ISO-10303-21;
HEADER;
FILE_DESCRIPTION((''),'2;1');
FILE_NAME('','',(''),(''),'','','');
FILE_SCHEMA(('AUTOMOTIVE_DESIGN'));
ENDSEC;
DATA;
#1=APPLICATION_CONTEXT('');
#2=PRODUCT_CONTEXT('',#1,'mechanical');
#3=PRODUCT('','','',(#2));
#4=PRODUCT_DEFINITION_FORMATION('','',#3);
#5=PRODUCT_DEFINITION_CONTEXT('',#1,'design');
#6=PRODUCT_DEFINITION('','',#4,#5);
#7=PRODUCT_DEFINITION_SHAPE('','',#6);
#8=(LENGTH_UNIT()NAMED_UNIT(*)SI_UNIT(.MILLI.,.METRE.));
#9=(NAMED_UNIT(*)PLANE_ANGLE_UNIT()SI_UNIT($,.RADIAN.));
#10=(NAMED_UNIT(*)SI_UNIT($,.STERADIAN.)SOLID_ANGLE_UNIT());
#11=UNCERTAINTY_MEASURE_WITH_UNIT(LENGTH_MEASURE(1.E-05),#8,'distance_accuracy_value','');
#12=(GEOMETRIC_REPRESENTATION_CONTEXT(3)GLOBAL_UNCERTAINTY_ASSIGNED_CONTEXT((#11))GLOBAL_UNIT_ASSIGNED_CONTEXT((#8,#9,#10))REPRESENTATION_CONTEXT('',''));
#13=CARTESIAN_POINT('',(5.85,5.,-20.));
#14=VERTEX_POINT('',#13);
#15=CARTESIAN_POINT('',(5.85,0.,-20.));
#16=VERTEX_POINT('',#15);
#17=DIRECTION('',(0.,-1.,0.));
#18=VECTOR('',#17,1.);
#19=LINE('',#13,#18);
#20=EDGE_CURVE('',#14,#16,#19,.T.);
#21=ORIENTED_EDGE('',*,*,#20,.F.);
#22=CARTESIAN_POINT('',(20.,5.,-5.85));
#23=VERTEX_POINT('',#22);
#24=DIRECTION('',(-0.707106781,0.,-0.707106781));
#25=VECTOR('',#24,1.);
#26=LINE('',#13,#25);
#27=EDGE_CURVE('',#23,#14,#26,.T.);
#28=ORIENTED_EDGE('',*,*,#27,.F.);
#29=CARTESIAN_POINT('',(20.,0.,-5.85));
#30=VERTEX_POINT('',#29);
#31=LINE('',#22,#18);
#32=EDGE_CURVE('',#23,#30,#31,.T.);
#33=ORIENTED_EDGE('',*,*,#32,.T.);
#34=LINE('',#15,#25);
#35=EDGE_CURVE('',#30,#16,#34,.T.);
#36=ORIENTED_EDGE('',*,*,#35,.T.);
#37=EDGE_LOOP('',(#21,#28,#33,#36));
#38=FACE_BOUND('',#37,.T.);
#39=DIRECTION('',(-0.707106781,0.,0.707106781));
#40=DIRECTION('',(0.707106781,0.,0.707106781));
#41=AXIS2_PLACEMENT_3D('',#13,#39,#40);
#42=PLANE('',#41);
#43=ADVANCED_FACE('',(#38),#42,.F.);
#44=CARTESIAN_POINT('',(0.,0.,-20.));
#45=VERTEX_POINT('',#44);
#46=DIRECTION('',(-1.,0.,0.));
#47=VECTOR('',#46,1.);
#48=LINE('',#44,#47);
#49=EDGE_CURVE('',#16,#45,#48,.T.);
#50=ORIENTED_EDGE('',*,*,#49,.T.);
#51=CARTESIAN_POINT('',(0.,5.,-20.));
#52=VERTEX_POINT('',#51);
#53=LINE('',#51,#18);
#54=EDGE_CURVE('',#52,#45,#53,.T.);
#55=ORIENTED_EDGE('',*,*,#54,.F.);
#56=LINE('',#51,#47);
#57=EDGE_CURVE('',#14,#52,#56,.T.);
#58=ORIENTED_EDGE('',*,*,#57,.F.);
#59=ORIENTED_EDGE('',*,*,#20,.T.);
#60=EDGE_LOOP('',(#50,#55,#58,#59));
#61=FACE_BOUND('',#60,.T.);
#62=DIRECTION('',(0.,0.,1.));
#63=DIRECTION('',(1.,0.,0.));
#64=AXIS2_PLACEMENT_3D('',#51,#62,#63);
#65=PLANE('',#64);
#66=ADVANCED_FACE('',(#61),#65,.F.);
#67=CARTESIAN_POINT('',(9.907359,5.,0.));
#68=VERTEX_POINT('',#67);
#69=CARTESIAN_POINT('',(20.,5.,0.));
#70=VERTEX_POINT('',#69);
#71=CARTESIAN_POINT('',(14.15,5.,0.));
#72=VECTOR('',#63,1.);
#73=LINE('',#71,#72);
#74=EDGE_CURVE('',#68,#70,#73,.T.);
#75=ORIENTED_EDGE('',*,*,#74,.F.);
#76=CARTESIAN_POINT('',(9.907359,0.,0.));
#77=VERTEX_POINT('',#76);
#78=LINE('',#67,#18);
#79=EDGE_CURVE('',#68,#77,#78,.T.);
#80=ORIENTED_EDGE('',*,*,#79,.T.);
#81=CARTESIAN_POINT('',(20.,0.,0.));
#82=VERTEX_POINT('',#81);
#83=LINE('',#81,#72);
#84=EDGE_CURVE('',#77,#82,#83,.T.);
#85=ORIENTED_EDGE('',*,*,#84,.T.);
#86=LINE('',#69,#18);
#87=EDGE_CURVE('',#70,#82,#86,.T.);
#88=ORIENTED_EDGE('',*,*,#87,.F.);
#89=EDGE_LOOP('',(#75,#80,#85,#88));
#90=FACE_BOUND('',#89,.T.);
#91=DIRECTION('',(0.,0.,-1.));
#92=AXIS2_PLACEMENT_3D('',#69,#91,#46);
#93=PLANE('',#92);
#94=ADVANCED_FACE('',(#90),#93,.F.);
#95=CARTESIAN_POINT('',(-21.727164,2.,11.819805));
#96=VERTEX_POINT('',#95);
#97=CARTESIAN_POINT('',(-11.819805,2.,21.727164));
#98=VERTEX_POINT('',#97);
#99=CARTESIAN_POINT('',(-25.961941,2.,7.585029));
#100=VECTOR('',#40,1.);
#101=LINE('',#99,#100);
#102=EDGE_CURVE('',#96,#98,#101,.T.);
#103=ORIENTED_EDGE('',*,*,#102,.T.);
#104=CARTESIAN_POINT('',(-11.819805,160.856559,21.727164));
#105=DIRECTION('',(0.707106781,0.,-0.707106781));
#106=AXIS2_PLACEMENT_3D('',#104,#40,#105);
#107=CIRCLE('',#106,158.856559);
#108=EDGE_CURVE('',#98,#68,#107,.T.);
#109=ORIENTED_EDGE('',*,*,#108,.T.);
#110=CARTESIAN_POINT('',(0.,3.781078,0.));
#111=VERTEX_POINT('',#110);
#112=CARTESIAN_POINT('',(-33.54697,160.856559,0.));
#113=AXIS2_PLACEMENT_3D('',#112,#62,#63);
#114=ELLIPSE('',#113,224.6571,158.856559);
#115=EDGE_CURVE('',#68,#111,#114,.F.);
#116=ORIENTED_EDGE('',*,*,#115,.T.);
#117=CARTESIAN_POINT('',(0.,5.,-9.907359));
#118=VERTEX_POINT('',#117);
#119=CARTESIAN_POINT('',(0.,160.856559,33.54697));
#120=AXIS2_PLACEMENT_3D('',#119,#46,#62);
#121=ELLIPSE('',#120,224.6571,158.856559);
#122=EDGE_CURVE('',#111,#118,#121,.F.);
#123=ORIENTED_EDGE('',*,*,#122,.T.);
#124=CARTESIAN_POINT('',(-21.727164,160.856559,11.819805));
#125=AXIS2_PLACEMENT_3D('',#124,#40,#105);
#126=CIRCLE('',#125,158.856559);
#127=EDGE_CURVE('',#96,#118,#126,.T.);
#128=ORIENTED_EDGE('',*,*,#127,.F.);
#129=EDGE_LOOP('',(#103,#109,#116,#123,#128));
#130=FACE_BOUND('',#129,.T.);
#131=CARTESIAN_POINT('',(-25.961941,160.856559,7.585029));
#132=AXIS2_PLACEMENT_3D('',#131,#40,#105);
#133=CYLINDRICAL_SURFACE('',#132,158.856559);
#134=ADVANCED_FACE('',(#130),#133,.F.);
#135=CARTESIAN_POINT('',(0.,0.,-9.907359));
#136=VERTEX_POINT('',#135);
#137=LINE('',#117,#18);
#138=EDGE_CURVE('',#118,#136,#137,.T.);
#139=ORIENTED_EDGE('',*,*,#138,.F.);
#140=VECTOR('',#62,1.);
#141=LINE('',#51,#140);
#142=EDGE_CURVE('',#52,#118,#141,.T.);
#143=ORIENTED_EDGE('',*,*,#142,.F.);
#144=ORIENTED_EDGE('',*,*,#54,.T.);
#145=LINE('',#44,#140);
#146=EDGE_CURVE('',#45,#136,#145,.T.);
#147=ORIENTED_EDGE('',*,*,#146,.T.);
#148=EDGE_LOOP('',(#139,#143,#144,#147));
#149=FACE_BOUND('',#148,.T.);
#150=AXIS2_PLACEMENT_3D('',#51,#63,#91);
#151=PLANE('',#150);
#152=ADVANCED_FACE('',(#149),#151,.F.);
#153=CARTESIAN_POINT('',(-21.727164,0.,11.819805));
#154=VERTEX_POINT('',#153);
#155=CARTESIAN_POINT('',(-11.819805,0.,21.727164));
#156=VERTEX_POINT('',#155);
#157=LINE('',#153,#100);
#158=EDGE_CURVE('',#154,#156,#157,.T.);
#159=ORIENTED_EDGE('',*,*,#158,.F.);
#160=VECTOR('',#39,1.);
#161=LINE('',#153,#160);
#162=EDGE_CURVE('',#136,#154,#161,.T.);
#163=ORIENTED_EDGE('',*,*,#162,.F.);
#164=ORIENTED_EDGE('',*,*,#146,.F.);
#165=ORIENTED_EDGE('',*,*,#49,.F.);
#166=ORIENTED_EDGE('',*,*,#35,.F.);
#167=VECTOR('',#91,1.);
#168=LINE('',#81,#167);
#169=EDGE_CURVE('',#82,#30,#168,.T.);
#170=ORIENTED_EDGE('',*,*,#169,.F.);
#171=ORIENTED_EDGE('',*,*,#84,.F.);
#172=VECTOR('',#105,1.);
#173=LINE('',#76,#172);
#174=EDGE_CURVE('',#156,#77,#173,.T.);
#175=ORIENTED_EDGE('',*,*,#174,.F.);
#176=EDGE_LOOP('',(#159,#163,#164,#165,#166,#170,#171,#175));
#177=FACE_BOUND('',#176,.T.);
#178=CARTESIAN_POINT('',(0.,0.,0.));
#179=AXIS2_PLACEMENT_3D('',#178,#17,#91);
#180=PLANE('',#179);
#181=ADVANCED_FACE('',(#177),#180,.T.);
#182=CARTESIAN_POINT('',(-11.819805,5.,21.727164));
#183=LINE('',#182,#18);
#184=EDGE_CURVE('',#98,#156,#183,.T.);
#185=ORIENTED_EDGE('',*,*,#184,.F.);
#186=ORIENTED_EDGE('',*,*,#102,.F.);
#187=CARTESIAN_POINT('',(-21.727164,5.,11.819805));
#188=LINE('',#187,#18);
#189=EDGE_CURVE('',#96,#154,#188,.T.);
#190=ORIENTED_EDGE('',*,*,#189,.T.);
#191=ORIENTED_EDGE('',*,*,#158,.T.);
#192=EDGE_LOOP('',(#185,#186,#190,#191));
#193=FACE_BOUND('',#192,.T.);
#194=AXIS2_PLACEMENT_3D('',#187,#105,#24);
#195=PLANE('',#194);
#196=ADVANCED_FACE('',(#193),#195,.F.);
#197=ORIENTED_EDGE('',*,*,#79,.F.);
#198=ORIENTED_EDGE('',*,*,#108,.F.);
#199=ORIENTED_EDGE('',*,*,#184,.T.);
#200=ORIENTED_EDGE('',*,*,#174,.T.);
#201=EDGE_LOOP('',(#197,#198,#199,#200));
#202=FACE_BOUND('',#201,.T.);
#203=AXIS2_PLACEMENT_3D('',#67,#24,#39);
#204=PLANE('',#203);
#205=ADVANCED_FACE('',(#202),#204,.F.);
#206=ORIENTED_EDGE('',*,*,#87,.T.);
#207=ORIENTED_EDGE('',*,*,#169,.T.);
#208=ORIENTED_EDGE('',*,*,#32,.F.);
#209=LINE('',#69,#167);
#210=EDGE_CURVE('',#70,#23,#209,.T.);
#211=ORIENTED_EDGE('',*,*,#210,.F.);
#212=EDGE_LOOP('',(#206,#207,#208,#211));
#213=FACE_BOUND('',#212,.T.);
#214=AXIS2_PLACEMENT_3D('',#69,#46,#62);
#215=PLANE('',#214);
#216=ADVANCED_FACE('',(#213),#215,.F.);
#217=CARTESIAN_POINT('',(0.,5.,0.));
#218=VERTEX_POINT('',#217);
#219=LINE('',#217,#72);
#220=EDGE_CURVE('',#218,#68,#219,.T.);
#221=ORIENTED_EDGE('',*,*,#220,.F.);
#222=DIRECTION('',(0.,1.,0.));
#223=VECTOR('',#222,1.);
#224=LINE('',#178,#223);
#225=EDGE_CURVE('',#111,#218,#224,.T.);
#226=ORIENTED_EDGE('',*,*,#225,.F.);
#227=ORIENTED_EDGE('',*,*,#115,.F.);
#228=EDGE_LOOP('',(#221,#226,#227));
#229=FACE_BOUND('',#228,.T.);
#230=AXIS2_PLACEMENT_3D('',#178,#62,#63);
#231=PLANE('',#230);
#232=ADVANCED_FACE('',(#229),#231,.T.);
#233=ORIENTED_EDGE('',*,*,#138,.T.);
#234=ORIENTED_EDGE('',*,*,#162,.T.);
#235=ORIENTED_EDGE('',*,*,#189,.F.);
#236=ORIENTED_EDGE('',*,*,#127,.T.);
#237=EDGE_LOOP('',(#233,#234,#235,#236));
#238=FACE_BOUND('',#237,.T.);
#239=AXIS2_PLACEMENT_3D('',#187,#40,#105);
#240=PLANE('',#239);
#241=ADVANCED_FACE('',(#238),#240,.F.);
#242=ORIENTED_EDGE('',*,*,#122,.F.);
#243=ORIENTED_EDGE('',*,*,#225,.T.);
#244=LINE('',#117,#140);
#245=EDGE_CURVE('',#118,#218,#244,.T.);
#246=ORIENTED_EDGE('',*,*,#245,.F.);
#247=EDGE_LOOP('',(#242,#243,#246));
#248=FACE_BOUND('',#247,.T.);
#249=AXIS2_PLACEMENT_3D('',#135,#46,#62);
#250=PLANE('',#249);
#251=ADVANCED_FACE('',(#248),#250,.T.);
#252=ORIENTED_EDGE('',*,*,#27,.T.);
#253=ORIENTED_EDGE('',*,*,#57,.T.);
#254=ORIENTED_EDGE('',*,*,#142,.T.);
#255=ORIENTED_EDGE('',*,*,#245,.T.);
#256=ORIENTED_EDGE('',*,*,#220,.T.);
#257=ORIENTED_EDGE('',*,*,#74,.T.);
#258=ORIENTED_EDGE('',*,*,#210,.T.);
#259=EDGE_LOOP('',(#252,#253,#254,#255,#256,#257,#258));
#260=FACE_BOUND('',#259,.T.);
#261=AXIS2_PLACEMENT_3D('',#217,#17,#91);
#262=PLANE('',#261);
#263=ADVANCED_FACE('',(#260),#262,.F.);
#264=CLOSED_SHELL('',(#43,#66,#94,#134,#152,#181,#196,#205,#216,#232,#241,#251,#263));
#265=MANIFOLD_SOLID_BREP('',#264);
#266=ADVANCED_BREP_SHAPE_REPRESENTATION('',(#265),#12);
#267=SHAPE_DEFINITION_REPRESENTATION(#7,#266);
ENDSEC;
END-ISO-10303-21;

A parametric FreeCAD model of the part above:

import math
import FreeCAD as App
import Part
import Sketcher

V = App.Vector
Q = App.Units.Quantity


def add_polygon(sketch, points):
    """Adds a closed chain of lines whose ends are joined by coincident constraints."""
    first, n = sketch.GeometryCount, len(points)
    for a, b in zip(points, points[1:] + points[:1]):
        sketch.addGeometry(Part.LineSegment(App.Vector(*a, 0), App.Vector(*b, 0)), False)
    for i in range(n):
        sketch.addConstraint(Sketcher.Constraint("Coincident", first + i, 2, first + (i + 1) % n, 1))

doc = App.newDocument("Part")
body = doc.addObject("PartDesign::Body", "Body")

sketch1 = body.newObject("Sketcher::SketchObject", "Sketch")
sketch1.AttachmentSupport = (doc.getObject("XZ_Plane"), [""])
sketch1.MapMode = "FlatFace"
add_polygon(sketch1, [(5.85, -20), (0, -20), (0, -9.907359), (-21.727164, 11.819805), (-11.819805, 21.727164), (9.907359, 0), (20, 0), (20, -5.85)])
sketch1.addConstraint([
    Sketcher.Constraint("Horizontal", 0),
    Sketcher.Constraint("Vertical", 1),
    Sketcher.Constraint("Horizontal", 5),
    Sketcher.Constraint("Vertical", 6),
    Sketcher.Constraint("PointOnObject", 0, 2, -2),
    Sketcher.Constraint("PointOnObject", 4, 2, -1),
    Sketcher.Constraint("Perpendicular", 2, 3),
    Sketcher.Constraint("Perpendicular", 3, 4),
    Sketcher.Constraint("Perpendicular", 4, 7),
    Sketcher.Constraint("Equal", 5, 1),
    Sketcher.Constraint("Equal", 0, 6),
    Sketcher.Constraint("Equal", 2, 4),
    Sketcher.Constraint("DistanceY", 0, 2, -1, 1, Q("20 mm")),
    Sketcher.Constraint("DistanceX", 0, 2, 0, 1, Q("5.85 mm")),
    Sketcher.Constraint("DistanceX", 5, 1, 5, 2, Q("10.092641 mm")),
    Sketcher.Constraint("Distance", 2, Q("30.726851 mm")),
])
pad1 = body.newObject("PartDesign::Pad", "Pad")
pad1.Profile = sketch1
pad1.Length = 5
pad1.Reversed = True

sketch2 = body.newObject("Sketcher::SketchObject", "Sketch001")
sketch2.Placement = App.Placement(V(4.95368, 0, 4.95368), App.Rotation(V(0.707106781, 0, -0.707106781), V(0, 0.999999999, 0), V(0.707106781, 0, 0.707106781), "ZXY"))
sketch2.addGeometry([
    Part.LineSegment(V(-23.72129, 5, 0), V(-23.72129, 2, 0)),
    Part.ArcOfCircle(Part.Circle(V(-23.72129, 160.856559, 0), V(0, 0, 1), 158.856559), math.radians(-90), math.radians(-78.847261)),
    Part.LineSegment(V(7.005561, 5, 0), V(-23.72129, 5, 0)),
], False)
sketch2.addConstraint([
    Sketcher.Constraint("Coincident", 0, 2, 1, 1),
    Sketcher.Constraint("Coincident", 1, 2, 2, 1),
    Sketcher.Constraint("Coincident", 2, 2, 0, 1),
    Sketcher.Constraint("Vertical", 0),
    Sketcher.Constraint("Horizontal", 2),
    Sketcher.Constraint("Vertical", 1, 3, 0, 2),
    Sketcher.Constraint("DistanceY", 0, 2, 0, 1, Q("3 mm")),
    Sketcher.Constraint("DistanceY", -1, 1, 0, 2, Q("2 mm")),
    Sketcher.Constraint("Radius", 1, Q("158.856559 mm")),
    Sketcher.Constraint("DistanceX", 1, 3, -1, 1, Q("23.72129 mm")),
])
pocket1 = body.newObject("PartDesign::Pocket", "Pocket")
pocket1.Profile = sketch2
pocket1.Length = 20

sketch3 = body.newObject("Sketcher::SketchObject", "Sketch002")
sketch3.AttachmentSupport = (doc.getObject("XZ_Plane"), [""])
sketch3.MapMode = "FlatFace"
sketch3.AttachmentOffset = App.Placement(V(0, 0, -5), App.Rotation())
add_polygon(sketch3, [(0, -9.907359), (0, 0), (9.907359, 0)])
sketch3.addConstraint([
    Sketcher.Constraint("Vertical", 0),
    Sketcher.Constraint("Horizontal", 1),
    Sketcher.Constraint("Coincident", 0, 2, -1, 1),
    Sketcher.Constraint("Equal", 1, 0),
    Sketcher.Constraint("DistanceX", 1, 1, 1, 2, Q("9.907359 mm")),
])
pad2 = body.newObject("PartDesign::Pad", "Pad001")
pad2.Profile = sketch3
pad2.Length = 5

doc.recompute()
